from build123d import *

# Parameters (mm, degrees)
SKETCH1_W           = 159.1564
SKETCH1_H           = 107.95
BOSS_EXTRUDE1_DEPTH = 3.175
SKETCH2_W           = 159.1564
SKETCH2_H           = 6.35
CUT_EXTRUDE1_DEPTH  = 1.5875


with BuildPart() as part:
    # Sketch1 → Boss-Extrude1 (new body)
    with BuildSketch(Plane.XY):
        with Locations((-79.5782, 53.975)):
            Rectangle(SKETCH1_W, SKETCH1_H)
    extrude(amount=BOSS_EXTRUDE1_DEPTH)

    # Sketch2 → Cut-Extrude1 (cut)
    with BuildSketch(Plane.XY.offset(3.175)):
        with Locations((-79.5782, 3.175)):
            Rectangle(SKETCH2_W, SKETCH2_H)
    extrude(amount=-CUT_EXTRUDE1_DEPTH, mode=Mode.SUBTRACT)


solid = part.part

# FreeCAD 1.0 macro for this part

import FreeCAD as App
import Part
import Sketcher
from FreeCAD import Vector
Q = App.Units.Quantity

doc = App.newDocument("Part")
body = doc.addObject("PartDesign::Body", "Body")

sketch1 = doc.addObject("Sketcher::SketchObject", "Sketch")
body.addObject(sketch1)
sketch1.AttachmentSupport = (doc.XY_Plane, [""])
sketch1.MapMode = "FlatFace"
sketch1.addGeometry([
    Part.LineSegment(Vector(-159.1564, 107.95, 0), Vector(-159.1564, 0, 0)),
    Part.LineSegment(Vector(-159.1564, 0, 0), Vector(0, 0, 0)),
    Part.LineSegment(Vector(0, 0, 0), Vector(0, 107.95, 0)),
    Part.LineSegment(Vector(0, 107.95, 0), Vector(-159.1564, 107.95, 0)),
], False)
sketch1.addConstraint([
    Sketcher.Constraint("Coincident", 0, 2, 1, 1),
    Sketcher.Constraint("Coincident", 1, 2, 2, 1),
    Sketcher.Constraint("Coincident", 2, 2, 3, 1),
    Sketcher.Constraint("Coincident", 3, 2, 0, 1),
    Sketcher.Constraint("Vertical", 0),
    Sketcher.Constraint("Horizontal", 1),
    Sketcher.Constraint("Vertical", 2),
    Sketcher.Constraint("Horizontal", 3),
    Sketcher.Constraint("Coincident", 1, 2, -1, 1),
    Sketcher.Constraint("DistanceY", 0, 2, 0, 1, Q("4.25 in")),
    Sketcher.Constraint("DistanceX", 1, 1, 1, 2, Q("6.266 in")),
])
pad1 = doc.addObject("PartDesign::Pad", "Pad")
body.addObject(pad1)
pad1.Profile = sketch1
pad1.Length = Q("0.125 in")

sketch2 = doc.addObject("Sketcher::SketchObject", "Sketch001")
body.addObject(sketch2)
sketch2.AttachmentSupport = (doc.XY_Plane, [""])
sketch2.MapMode = "FlatFace"
sketch2.AttachmentOffset = App.Placement(Vector(0, 0, 0.125 * 25.4), App.Rotation())
sketch2.addGeometry([
    Part.LineSegment(Vector(-159.1564, 6.35, 0), Vector(-159.1564, 0, 0)),
    Part.LineSegment(Vector(-159.1564, 0, 0), Vector(0, 0, 0)),
    Part.LineSegment(Vector(0, 0, 0), Vector(0, 6.35, 0)),
    Part.LineSegment(Vector(0, 6.35, 0), Vector(-159.1564, 6.35, 0)),
], False)
sketch2.addConstraint([
    Sketcher.Constraint("Coincident", 0, 2, 1, 1),
    Sketcher.Constraint("Coincident", 1, 2, 2, 1),
    Sketcher.Constraint("Coincident", 2, 2, 3, 1),
    Sketcher.Constraint("Coincident", 3, 2, 0, 1),
    Sketcher.Constraint("Vertical", 0),
    Sketcher.Constraint("Horizontal", 1),
    Sketcher.Constraint("Vertical", 2),
    Sketcher.Constraint("Horizontal", 3),
    Sketcher.Constraint("Coincident", 1, 2, -1, 1),
    Sketcher.Constraint("DistanceY", 0, 2, 0, 1, Q("0.25 in")),
    Sketcher.Constraint("DistanceX", 1, 1, 1, 2, Q("6.266 in")),
])
pocket1 = doc.addObject("PartDesign::Pocket", "Pocket")
body.addObject(pocket1)
pocket1.Profile = sketch2
pocket1.Length = Q("0.0625 in")

doc.recompute()
